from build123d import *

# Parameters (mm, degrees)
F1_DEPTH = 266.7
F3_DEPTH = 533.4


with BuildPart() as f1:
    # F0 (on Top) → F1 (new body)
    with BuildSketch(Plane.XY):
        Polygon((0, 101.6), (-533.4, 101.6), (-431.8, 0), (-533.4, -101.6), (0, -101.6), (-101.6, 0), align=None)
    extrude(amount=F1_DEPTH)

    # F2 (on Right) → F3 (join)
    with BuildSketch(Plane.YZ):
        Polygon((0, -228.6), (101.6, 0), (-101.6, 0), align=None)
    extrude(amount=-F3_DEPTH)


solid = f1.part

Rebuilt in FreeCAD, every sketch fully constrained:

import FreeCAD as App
import Part
import Sketcher
from FreeCAD import Vector
Q = App.Units.Quantity

doc = App.newDocument("Part")
body = doc.addObject("PartDesign::Body", "Body")

# Sketch on XY plane
sketch1 = doc.addObject("Sketcher::SketchObject", "Sketch")
body.addObject(sketch1)
sketch1.AttachmentSupport = (doc.XY_Plane, [""])
sketch1.MapMode = "FlatFace"
sketch1.addGeometry([
    Part.LineSegment(Vector(0, 102, 0), Vector(-533, 102, 0)),  # 0
    Part.LineSegment(Vector(-533, 102, 0), Vector(-432, 0, 0)),  # 1
    Part.LineSegment(Vector(-432, 0, 0), Vector(-533, -102, 0)),  # 2
    Part.LineSegment(Vector(-533, -102, 0), Vector(0, -102, 0)),  # 3
    Part.LineSegment(Vector(0, -102, 0), Vector(-102, 0, 0)),  # 4
    Part.LineSegment(Vector(-102, 0, 0), Vector(0, 102, 0)),  # 5
], False)
sketch1.addConstraint([
    Sketcher.Constraint("Coincident", 0, 2, 1, 1),
    Sketcher.Constraint("Coincident", 1, 2, 2, 1),
    Sketcher.Constraint("Coincident", 2, 2, 3, 1),
    Sketcher.Constraint("Coincident", 3, 2, 4, 1),
    Sketcher.Constraint("Coincident", 4, 2, 5, 1),
    Sketcher.Constraint("Coincident", 5, 2, 0, 1),
    Sketcher.Constraint("Horizontal", 0),
    Sketcher.Constraint("Horizontal", 3),
    Sketcher.Constraint("Symmetric", 3, 2, 5, 2, -1, 1),
    Sketcher.Constraint("PointOnObject", 1, 2, -1),
    Sketcher.Constraint("PointOnObject", 3, 2, -2),
    Sketcher.Constraint("PointOnObject", 4, 2, -1),
    Sketcher.Constraint("Perpendicular", 1, 2),
    Sketcher.Constraint("Perpendicular", 2, 4),
    Sketcher.Constraint("Perpendicular", 4, 5),
    Sketcher.Constraint("DistanceX", 0, 2, 0, 1, Q("21 in")),
    Sketcher.Constraint("DistanceY", -1, 1, 0, 2, Q("4 in")),
])
pad1 = doc.addObject("PartDesign::Pad", "Pad")
body.addObject(pad1)
pad1.Profile = sketch1
pad1.Length = Q("10.5 in")

# Sketch on YZ plane
sketch2 = doc.addObject("Sketcher::SketchObject", "Sketch001")
body.addObject(sketch2)
sketch2.AttachmentSupport = (doc.YZ_Plane, [""])
sketch2.MapMode = "FlatFace"
sketch2.addGeometry([
    Part.LineSegment(Vector(0, -229, 0), Vector(102, 0, 0)),
    Part.LineSegment(Vector(102, 0, 0), Vector(-102, 0, 0)),
    Part.LineSegment(Vector(-102, 0, 0), Vector(0, -229, 0)),
], False)
sketch2.addConstraint([
    Sketcher.Constraint("Coincident", 0, 2, 1, 1),
    Sketcher.Constraint("Coincident", 1, 2, 2, 1),
    Sketcher.Constraint("Coincident", 2, 2, 0, 1),
    Sketcher.Constraint("Horizontal", 1),
    Sketcher.Constraint("Symmetric", 0, 2, 1, 2, -1, 1),
    Sketcher.Constraint("PointOnObject", 2, 2, -2),
    Sketcher.Constraint("DistanceX", 1, 2, 1, 1, Q("8 in")),
    Sketcher.Constraint("DistanceY", 2, 2, -1, 1, Q("9 in")),
])
pad2 = doc.addObject("PartDesign::Pad", "Pad001")
body.addObject(pad2)
pad2.Profile = sketch2
pad2.Length = Q("21 in")
pad2.Reversed = True

doc.recompute()
